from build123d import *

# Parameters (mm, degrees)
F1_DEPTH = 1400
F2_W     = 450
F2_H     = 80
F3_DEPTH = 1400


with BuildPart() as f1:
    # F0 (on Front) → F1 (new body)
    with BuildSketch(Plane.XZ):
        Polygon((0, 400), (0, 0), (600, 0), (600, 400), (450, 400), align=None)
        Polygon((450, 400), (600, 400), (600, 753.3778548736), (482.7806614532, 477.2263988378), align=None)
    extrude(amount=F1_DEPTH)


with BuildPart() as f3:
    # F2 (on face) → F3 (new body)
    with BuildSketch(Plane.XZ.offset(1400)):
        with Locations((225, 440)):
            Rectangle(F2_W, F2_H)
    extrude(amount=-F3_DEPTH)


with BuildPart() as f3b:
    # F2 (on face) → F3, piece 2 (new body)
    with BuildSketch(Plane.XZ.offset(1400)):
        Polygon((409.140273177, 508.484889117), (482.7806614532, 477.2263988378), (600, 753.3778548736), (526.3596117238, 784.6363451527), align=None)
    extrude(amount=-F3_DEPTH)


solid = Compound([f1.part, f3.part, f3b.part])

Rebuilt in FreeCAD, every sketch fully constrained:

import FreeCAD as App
import Part
import Sketcher

V = App.Vector
Q = App.Units.Quantity

doc = App.newDocument("Part")
body = doc.addObject("PartDesign::Body", "Body")

sketch1 = body.newObject("Sketcher::SketchObject", "Sketch")
sketch1.AttachmentSupport = (doc.getObject("XZ_Plane"), [""])
sketch1.MapMode = "FlatFace"
sketch1.addGeometry([
    Part.LineSegment(V(0, 400, 0), V(0, 0, 0)),
    Part.LineSegment(V(0, 0, 0), V(600, 0, 0)),
    Part.LineSegment(V(600, 0, 0), V(600, 753, 0)),
    Part.LineSegment(V(600, 753, 0), V(450, 400, 0)),
    Part.LineSegment(V(450, 400, 0), V(0, 400, 0)),
], False)
sketch1.addConstraint([
    Sketcher.Constraint("Coincident", 0, 2, 1, 1),
    Sketcher.Constraint("Coincident", 1, 2, 2, 1),
    Sketcher.Constraint("Coincident", 2, 2, 3, 1),
    Sketcher.Constraint("Coincident", 3, 2, 4, 1),
    Sketcher.Constraint("Coincident", 4, 2, 0, 1),
    Sketcher.Constraint("Vertical", 0),
    Sketcher.Constraint("Horizontal", 1),
    Sketcher.Constraint("Vertical", 2),
    Sketcher.Constraint("Horizontal", 4),
    Sketcher.Constraint("Coincident", 0, 2, -1, 1),
    Sketcher.Constraint("DistanceX", 1, 1, 1, 2, 600.0),
    Sketcher.Constraint("DistanceX", 4, 2, 4, 1, 450.0),
    Sketcher.Constraint("DistanceY", 0, 2, 0, 1, 400.0),
    Sketcher.Constraint("Angle", 3, Q("-113 deg")),
])
pad1 = body.newObject("PartDesign::Pad", "Pad")
pad1.Profile = sketch1
pad1.Length = 1400
body2 = doc.addObject("PartDesign::Body", "Body001")

sketch2 = body2.newObject("Sketcher::SketchObject", "Sketch001")
sketch2.AttachmentSupport = (doc.getObject("XZ_Plane001"), [""])
sketch2.MapMode = "FlatFace"
sketch2.AttachmentOffset = App.Placement(V(0, 0, 1400), App.Rotation())
sketch2.addGeometry([
    Part.LineSegment(V(0, 480, 0), V(0, 400, 0)),
    Part.LineSegment(V(0, 400, 0), V(450, 400, 0)),
    Part.LineSegment(V(450, 400, 0), V(450, 480, 0)),
    Part.LineSegment(V(450, 480, 0), V(0, 480, 0)),
], False)
sketch2.addConstraint([
    Sketcher.Constraint("Coincident", 0, 2, 1, 1),
    Sketcher.Constraint("Coincident", 1, 2, 2, 1),
    Sketcher.Constraint("Coincident", 2, 2, 3, 1),
    Sketcher.Constraint("Coincident", 3, 2, 0, 1),
    Sketcher.Constraint("Vertical", 0),
    Sketcher.Constraint("Horizontal", 1),
    Sketcher.Constraint("Vertical", 2),
    Sketcher.Constraint("Horizontal", 3),
    Sketcher.Constraint("PointOnObject", 0, 2, -2),
    Sketcher.Constraint("DistanceX", 1, 1, 1, 2, 450.0),
    Sketcher.Constraint("DistanceY", 0, 2, 0, 1, 80.0),
    Sketcher.Constraint("DistanceY", -1, 1, 0, 2, 400.0),
])
pad2 = body2.newObject("PartDesign::Pad", "Pad001")
pad2.Profile = sketch2
pad2.Length = 1400
pad2.Reversed = True
body3 = doc.addObject("PartDesign::Body", "Body002")

sketch3 = body3.newObject("Sketcher::SketchObject", "Sketch002")
sketch3.AttachmentSupport = (doc.getObject("XZ_Plane002"), [""])
sketch3.MapMode = "FlatFace"
sketch3.AttachmentOffset = App.Placement(V(0, 0, 1400), App.Rotation())
sketch3.addGeometry([
    Part.LineSegment(V(409, 508, 0), V(483, 477, 0)),
    Part.LineSegment(V(483, 477, 0), V(600, 753, 0)),
    Part.LineSegment(V(600, 753, 0), V(526, 785, 0)),
    Part.LineSegment(V(526, 785, 0), V(409, 508, 0)),
], False)
sketch3.addConstraint([
    Sketcher.Constraint("Coincident", 0, 2, 1, 1),
    Sketcher.Constraint("Coincident", 1, 2, 2, 1),
    Sketcher.Constraint("Coincident", 2, 2, 3, 1),
    Sketcher.Constraint("Coincident", 3, 2, 0, 1),
    Sketcher.Constraint("Perpendicular", 0, 1),
    Sketcher.Constraint("Perpendicular", 1, 2),
    Sketcher.Constraint("Perpendicular", 2, 3),
    Sketcher.Constraint("Angle", 0, Q("-23 deg")),
    Sketcher.Constraint("Distance", 0, 80.0),
    Sketcher.Constraint("Distance", 1, 300.0),
    Sketcher.Constraint("DistanceX", -1, 1, 1, 2, 600.0),
    Sketcher.Constraint("DistanceY", -1, 1, 0, 2, 477.226399),
])
pad3 = body3.newObject("PartDesign::Pad", "Pad002")
pad3.Profile = sketch3
pad3.Length = 1400
pad3.Reversed = True

doc.recompute()
